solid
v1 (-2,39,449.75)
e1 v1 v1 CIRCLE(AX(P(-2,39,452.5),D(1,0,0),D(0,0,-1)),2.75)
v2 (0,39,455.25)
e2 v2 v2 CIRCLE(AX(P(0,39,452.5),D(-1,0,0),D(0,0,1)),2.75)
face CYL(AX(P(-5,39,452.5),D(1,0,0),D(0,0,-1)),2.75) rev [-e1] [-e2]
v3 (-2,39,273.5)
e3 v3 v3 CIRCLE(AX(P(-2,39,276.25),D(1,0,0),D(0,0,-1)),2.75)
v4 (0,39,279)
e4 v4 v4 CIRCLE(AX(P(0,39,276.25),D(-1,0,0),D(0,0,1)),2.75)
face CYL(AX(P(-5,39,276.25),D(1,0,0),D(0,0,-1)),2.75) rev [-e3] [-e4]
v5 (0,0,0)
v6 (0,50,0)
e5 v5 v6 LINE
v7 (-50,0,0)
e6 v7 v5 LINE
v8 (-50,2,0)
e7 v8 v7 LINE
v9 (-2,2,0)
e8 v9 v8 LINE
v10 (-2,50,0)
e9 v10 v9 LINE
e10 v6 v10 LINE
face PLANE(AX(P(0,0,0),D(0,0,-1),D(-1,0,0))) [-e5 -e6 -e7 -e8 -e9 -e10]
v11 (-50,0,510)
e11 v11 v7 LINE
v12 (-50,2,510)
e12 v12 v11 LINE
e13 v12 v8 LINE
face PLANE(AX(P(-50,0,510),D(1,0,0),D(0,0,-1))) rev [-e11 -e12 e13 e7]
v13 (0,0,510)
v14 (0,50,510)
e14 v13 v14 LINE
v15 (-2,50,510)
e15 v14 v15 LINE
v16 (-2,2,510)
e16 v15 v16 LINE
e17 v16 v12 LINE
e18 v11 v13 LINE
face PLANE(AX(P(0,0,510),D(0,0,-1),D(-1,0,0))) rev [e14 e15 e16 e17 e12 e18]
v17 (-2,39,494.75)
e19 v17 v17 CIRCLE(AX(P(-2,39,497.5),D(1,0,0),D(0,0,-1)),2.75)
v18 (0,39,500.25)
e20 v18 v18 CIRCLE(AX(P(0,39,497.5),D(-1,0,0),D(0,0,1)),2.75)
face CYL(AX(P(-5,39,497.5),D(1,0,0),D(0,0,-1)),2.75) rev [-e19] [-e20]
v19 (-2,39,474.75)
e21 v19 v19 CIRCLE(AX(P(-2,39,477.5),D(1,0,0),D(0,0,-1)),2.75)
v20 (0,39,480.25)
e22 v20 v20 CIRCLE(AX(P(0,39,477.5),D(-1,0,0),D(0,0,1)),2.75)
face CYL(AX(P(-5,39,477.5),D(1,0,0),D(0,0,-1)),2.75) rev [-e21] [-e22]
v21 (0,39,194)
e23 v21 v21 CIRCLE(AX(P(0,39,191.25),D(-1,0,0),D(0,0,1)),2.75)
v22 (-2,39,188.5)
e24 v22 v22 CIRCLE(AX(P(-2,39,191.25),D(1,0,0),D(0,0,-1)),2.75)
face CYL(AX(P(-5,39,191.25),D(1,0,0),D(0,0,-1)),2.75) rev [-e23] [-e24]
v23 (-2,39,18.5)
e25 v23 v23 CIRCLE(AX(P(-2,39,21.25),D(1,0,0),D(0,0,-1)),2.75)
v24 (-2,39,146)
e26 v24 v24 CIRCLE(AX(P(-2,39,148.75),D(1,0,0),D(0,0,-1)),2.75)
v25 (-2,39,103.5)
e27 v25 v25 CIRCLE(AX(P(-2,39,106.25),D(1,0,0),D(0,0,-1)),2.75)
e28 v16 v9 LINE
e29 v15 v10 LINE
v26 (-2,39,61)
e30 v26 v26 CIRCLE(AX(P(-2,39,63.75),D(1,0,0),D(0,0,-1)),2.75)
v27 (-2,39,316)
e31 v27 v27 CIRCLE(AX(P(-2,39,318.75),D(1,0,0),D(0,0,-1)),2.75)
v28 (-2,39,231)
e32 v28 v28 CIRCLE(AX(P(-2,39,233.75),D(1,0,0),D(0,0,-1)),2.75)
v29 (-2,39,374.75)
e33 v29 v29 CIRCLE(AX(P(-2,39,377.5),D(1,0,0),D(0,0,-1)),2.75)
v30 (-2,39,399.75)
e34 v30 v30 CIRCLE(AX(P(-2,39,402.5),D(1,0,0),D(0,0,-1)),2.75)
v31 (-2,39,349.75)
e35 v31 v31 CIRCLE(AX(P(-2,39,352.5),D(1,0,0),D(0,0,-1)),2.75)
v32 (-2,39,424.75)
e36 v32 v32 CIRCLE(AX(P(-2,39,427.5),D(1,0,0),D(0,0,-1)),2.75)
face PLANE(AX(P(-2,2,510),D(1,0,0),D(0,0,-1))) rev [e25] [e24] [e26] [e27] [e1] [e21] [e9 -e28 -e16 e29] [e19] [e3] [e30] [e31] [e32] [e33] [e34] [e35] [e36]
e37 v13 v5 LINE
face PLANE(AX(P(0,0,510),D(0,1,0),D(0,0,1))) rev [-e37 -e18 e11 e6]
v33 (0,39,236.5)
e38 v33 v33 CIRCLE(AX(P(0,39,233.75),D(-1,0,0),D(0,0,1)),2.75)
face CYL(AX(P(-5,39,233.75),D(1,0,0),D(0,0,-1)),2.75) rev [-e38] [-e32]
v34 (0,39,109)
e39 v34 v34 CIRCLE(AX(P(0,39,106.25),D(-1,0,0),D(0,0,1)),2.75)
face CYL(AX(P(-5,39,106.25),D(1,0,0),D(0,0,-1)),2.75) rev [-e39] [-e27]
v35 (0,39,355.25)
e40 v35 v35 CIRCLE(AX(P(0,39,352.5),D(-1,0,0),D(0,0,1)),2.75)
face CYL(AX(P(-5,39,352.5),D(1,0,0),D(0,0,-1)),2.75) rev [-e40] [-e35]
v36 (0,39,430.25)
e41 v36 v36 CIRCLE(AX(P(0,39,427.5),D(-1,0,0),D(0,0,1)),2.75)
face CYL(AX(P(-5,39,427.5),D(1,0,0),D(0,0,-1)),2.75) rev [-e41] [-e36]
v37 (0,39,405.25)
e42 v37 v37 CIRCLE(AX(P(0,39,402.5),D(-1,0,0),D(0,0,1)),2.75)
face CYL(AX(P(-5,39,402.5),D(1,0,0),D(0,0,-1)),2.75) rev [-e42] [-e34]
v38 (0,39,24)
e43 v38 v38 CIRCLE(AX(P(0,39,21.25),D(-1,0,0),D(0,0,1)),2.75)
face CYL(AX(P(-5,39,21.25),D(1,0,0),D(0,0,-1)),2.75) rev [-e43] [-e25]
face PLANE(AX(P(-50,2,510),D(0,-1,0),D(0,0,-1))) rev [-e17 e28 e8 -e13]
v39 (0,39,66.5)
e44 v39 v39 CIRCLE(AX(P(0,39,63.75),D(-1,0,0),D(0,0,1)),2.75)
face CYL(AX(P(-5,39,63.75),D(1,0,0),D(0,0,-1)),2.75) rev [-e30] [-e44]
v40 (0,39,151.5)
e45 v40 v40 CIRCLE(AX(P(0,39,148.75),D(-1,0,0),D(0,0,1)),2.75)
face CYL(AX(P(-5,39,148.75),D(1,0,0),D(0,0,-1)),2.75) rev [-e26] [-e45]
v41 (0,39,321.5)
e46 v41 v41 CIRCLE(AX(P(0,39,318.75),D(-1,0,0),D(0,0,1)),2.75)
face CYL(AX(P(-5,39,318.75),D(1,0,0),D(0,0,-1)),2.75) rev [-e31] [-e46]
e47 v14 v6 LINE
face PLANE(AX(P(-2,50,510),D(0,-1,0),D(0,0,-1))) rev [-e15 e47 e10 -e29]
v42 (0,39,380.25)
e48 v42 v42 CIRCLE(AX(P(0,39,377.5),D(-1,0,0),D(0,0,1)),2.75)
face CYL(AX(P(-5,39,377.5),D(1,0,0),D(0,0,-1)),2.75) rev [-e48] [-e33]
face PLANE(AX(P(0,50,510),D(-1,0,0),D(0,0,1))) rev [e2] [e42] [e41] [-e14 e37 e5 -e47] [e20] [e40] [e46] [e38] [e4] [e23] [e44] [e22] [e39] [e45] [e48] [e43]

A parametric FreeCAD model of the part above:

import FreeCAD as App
import Part
import Sketcher

V = App.Vector
Q = App.Units.Quantity


def add_polygon(sketch, points):
    """Adds a closed chain of lines whose ends are joined by coincident constraints."""
    first, n = sketch.GeometryCount, len(points)
    for a, b in zip(points, points[1:] + points[:1]):
        sketch.addGeometry(Part.LineSegment(App.Vector(*a, 0), App.Vector(*b, 0)), False)
    for i in range(n):
        sketch.addConstraint(Sketcher.Constraint("Coincident", first + i, 2, first + (i + 1) % n, 1))

doc = App.newDocument("Part")
params = doc.addObject("Spreadsheet::Sheet", "Params")
for row, (alias, value) in enumerate([
    ("sketch1_width", "50 mm"),
    ("sketch1_width2", "2 mm"),
    ("pad1_length", "510 mm"),
    ("sketch2_diameter", "5.5 mm"),
    ("pocket1_length", "10 mm"),
], start=1):
    params.set(f"A{row}", alias)
    params.set(f"B{row}", "=" + value)
    params.setAlias(f"B{row}", alias)

body = doc.addObject("PartDesign::Body", "Body")

sketch1 = body.newObject("Sketcher::SketchObject", "Sketch")
sketch1.AttachmentSupport = (doc.getObject("XY_Plane"), [""])
sketch1.MapMode = "FlatFace"
add_polygon(sketch1, [(-50, 0), (0, 0), (0, 50), (-2, 50), (-2, 2), (-50, 2)])
sketch1.addConstraint([
    Sketcher.Constraint("Horizontal", 0),
    Sketcher.Constraint("Vertical", 1),
    Sketcher.Constraint("Horizontal", 2),
    Sketcher.Constraint("Vertical", 3),
    Sketcher.Constraint("Horizontal", 4),
    Sketcher.Constraint("Vertical", 5),
    Sketcher.Constraint("Coincident", 0, 2, -1, 1),
    Sketcher.Constraint("Equal", 0, 1),
    Sketcher.Constraint("Equal", 4, 3),
    Sketcher.Constraint("DistanceX", 0, 1, 0, 2, Q("50 mm")),
    Sketcher.Constraint("DistanceX", 2, 2, 2, 1, Q("2 mm")),
])
sketch1.setExpression("Constraints[15]", "Params.sketch1_width")
sketch1.setExpression("Constraints[16]", "Params.sketch1_width2")
pad1 = body.newObject("PartDesign::Pad", "Pad")
pad1.Profile = sketch1
pad1.setExpression("Length", "Params.pad1_length")

sketch2 = body.newObject("Sketcher::SketchObject", "Sketch001")
sketch2.AttachmentSupport = (doc.getObject("YZ_Plane"), [""])
sketch2.MapMode = "FlatFace"
sketch2.addGeometry([
    Part.Circle(V(39, 21.2, 0), V(0, 0, 1), 2.8),
    Part.Circle(V(39, 63.8, 0), V(0, 0, 1), 2.8),
    Part.Circle(V(39, 106.2, 0), V(0, 0, 1), 2.8),
    Part.Circle(V(39, 148.8, 0), V(0, 0, 1), 2.8),
    Part.Circle(V(39, 191.2, 0), V(0, 0, 1), 2.8),
    Part.Circle(V(39, 233.8, 0), V(0, 0, 1), 2.8),
    Part.Circle(V(39, 276.2, 0), V(0, 0, 1), 2.8),
    Part.Circle(V(39, 318.8, 0), V(0, 0, 1), 2.8),
    Part.Circle(V(39, 352.5, 0), V(0, 0, 1), 2.8),
    Part.Circle(V(39, 377.5, 0), V(0, 0, 1), 2.8),
    Part.Circle(V(39, 402.5, 0), V(0, 0, 1), 2.8),
    Part.Circle(V(39, 427.5, 0), V(0, 0, 1), 2.8),
    Part.Circle(V(39, 452.5, 0), V(0, 0, 1), 2.8),
    Part.Circle(V(39, 477.5, 0), V(0, 0, 1), 2.8),
    Part.Circle(V(39, 497.5, 0), V(0, 0, 1), 2.8),
], False)
sketch2.addConstraint([
    Sketcher.Constraint("Equal", 0, 1),
    Sketcher.Constraint("Equal", 1, 2),
    Sketcher.Constraint("Equal", 2, 3),
    Sketcher.Constraint("Equal", 3, 4),
    Sketcher.Constraint("Equal", 4, 5),
    Sketcher.Constraint("Equal", 5, 6),
    Sketcher.Constraint("Equal", 6, 7),
    Sketcher.Constraint("Equal", 7, 8),
    Sketcher.Constraint("Equal", 8, 9),
    Sketcher.Constraint("Equal", 9, 10),
    Sketcher.Constraint("Equal", 10, 11),
    Sketcher.Constraint("Equal", 11, 12),
    Sketcher.Constraint("Equal", 12, 13),
    Sketcher.Constraint("Equal", 13, 14),
    Sketcher.Constraint("Vertical", 0, 3, 1, 3),
    Sketcher.Constraint("Vertical", 1, 3, 2, 3),
    Sketcher.Constraint("Vertical", 2, 3, 3, 3),
    Sketcher.Constraint("Vertical", 3, 3, 4, 3),
    Sketcher.Constraint("Vertical", 4, 3, 5, 3),
    Sketcher.Constraint("Vertical", 5, 3, 6, 3),
    Sketcher.Constraint("Vertical", 6, 3, 7, 3),
    Sketcher.Constraint("Vertical", 7, 3, 8, 3),
    Sketcher.Constraint("Vertical", 8, 3, 9, 3),
    Sketcher.Constraint("Vertical", 9, 3, 10, 3),
    Sketcher.Constraint("Vertical", 10, 3, 11, 3),
    Sketcher.Constraint("Vertical", 11, 3, 12, 3),
    Sketcher.Constraint("Vertical", 12, 3, 13, 3),
    Sketcher.Constraint("Vertical", 13, 3, 14, 3),
    Sketcher.Constraint("Diameter", 0, Q("5.5 mm")),
    Sketcher.Constraint("DistanceX", -1, 1, 0, 3, Q("39 mm")),
    Sketcher.Constraint("DistanceY", 0, 3, 2, 3, Q("85 mm")),
    Sketcher.Constraint("DistanceY", 1, 3, 3, 3, Q("85 mm")),
    Sketcher.Constraint("DistanceY", 2, 3, 4, 3, Q("85 mm")),
    Sketcher.Constraint("DistanceY", 3, 3, 5, 3, Q("85 mm")),
    Sketcher.Constraint("DistanceY", 4, 3, 6, 3, Q("85 mm")),
    Sketcher.Constraint("DistanceY", 5, 3, 7, 3, Q("85 mm")),
    Sketcher.Constraint("DistanceY", 8, 3, 9, 3, Q("25 mm")),
    Sketcher.Constraint("DistanceY", 9, 3, 10, 3, Q("25 mm")),
    Sketcher.Constraint("DistanceY", 10, 3, 11, 3, Q("25 mm")),
    Sketcher.Constraint("DistanceY", 11, 3, 12, 3, Q("25 mm")),
    Sketcher.Constraint("DistanceY", 12, 3, 13, 3, Q("25 mm")),
    Sketcher.Constraint("DistanceY", 13, 3, 14, 3, Q("20 mm")),
    Sketcher.Constraint("DistanceY", -1, 1, 8, 3, Q("352.5 mm")),
    Sketcher.Constraint("DistanceY", 0, 3, 1, 3, Q("42.5 mm")),
    Sketcher.Constraint("DistanceY", -1, 1, 0, 3, Q("21.25 mm")),
])
sketch2.setExpression("Constraints[28]", "Params.sketch2_diameter")
pocket1 = body.newObject("PartDesign::Pocket", "Pocket")
pocket1.Profile = sketch2
pocket1.setExpression("Length", "Params.pocket1_length")
pocket1.Midplane = True

doc.recompute()
